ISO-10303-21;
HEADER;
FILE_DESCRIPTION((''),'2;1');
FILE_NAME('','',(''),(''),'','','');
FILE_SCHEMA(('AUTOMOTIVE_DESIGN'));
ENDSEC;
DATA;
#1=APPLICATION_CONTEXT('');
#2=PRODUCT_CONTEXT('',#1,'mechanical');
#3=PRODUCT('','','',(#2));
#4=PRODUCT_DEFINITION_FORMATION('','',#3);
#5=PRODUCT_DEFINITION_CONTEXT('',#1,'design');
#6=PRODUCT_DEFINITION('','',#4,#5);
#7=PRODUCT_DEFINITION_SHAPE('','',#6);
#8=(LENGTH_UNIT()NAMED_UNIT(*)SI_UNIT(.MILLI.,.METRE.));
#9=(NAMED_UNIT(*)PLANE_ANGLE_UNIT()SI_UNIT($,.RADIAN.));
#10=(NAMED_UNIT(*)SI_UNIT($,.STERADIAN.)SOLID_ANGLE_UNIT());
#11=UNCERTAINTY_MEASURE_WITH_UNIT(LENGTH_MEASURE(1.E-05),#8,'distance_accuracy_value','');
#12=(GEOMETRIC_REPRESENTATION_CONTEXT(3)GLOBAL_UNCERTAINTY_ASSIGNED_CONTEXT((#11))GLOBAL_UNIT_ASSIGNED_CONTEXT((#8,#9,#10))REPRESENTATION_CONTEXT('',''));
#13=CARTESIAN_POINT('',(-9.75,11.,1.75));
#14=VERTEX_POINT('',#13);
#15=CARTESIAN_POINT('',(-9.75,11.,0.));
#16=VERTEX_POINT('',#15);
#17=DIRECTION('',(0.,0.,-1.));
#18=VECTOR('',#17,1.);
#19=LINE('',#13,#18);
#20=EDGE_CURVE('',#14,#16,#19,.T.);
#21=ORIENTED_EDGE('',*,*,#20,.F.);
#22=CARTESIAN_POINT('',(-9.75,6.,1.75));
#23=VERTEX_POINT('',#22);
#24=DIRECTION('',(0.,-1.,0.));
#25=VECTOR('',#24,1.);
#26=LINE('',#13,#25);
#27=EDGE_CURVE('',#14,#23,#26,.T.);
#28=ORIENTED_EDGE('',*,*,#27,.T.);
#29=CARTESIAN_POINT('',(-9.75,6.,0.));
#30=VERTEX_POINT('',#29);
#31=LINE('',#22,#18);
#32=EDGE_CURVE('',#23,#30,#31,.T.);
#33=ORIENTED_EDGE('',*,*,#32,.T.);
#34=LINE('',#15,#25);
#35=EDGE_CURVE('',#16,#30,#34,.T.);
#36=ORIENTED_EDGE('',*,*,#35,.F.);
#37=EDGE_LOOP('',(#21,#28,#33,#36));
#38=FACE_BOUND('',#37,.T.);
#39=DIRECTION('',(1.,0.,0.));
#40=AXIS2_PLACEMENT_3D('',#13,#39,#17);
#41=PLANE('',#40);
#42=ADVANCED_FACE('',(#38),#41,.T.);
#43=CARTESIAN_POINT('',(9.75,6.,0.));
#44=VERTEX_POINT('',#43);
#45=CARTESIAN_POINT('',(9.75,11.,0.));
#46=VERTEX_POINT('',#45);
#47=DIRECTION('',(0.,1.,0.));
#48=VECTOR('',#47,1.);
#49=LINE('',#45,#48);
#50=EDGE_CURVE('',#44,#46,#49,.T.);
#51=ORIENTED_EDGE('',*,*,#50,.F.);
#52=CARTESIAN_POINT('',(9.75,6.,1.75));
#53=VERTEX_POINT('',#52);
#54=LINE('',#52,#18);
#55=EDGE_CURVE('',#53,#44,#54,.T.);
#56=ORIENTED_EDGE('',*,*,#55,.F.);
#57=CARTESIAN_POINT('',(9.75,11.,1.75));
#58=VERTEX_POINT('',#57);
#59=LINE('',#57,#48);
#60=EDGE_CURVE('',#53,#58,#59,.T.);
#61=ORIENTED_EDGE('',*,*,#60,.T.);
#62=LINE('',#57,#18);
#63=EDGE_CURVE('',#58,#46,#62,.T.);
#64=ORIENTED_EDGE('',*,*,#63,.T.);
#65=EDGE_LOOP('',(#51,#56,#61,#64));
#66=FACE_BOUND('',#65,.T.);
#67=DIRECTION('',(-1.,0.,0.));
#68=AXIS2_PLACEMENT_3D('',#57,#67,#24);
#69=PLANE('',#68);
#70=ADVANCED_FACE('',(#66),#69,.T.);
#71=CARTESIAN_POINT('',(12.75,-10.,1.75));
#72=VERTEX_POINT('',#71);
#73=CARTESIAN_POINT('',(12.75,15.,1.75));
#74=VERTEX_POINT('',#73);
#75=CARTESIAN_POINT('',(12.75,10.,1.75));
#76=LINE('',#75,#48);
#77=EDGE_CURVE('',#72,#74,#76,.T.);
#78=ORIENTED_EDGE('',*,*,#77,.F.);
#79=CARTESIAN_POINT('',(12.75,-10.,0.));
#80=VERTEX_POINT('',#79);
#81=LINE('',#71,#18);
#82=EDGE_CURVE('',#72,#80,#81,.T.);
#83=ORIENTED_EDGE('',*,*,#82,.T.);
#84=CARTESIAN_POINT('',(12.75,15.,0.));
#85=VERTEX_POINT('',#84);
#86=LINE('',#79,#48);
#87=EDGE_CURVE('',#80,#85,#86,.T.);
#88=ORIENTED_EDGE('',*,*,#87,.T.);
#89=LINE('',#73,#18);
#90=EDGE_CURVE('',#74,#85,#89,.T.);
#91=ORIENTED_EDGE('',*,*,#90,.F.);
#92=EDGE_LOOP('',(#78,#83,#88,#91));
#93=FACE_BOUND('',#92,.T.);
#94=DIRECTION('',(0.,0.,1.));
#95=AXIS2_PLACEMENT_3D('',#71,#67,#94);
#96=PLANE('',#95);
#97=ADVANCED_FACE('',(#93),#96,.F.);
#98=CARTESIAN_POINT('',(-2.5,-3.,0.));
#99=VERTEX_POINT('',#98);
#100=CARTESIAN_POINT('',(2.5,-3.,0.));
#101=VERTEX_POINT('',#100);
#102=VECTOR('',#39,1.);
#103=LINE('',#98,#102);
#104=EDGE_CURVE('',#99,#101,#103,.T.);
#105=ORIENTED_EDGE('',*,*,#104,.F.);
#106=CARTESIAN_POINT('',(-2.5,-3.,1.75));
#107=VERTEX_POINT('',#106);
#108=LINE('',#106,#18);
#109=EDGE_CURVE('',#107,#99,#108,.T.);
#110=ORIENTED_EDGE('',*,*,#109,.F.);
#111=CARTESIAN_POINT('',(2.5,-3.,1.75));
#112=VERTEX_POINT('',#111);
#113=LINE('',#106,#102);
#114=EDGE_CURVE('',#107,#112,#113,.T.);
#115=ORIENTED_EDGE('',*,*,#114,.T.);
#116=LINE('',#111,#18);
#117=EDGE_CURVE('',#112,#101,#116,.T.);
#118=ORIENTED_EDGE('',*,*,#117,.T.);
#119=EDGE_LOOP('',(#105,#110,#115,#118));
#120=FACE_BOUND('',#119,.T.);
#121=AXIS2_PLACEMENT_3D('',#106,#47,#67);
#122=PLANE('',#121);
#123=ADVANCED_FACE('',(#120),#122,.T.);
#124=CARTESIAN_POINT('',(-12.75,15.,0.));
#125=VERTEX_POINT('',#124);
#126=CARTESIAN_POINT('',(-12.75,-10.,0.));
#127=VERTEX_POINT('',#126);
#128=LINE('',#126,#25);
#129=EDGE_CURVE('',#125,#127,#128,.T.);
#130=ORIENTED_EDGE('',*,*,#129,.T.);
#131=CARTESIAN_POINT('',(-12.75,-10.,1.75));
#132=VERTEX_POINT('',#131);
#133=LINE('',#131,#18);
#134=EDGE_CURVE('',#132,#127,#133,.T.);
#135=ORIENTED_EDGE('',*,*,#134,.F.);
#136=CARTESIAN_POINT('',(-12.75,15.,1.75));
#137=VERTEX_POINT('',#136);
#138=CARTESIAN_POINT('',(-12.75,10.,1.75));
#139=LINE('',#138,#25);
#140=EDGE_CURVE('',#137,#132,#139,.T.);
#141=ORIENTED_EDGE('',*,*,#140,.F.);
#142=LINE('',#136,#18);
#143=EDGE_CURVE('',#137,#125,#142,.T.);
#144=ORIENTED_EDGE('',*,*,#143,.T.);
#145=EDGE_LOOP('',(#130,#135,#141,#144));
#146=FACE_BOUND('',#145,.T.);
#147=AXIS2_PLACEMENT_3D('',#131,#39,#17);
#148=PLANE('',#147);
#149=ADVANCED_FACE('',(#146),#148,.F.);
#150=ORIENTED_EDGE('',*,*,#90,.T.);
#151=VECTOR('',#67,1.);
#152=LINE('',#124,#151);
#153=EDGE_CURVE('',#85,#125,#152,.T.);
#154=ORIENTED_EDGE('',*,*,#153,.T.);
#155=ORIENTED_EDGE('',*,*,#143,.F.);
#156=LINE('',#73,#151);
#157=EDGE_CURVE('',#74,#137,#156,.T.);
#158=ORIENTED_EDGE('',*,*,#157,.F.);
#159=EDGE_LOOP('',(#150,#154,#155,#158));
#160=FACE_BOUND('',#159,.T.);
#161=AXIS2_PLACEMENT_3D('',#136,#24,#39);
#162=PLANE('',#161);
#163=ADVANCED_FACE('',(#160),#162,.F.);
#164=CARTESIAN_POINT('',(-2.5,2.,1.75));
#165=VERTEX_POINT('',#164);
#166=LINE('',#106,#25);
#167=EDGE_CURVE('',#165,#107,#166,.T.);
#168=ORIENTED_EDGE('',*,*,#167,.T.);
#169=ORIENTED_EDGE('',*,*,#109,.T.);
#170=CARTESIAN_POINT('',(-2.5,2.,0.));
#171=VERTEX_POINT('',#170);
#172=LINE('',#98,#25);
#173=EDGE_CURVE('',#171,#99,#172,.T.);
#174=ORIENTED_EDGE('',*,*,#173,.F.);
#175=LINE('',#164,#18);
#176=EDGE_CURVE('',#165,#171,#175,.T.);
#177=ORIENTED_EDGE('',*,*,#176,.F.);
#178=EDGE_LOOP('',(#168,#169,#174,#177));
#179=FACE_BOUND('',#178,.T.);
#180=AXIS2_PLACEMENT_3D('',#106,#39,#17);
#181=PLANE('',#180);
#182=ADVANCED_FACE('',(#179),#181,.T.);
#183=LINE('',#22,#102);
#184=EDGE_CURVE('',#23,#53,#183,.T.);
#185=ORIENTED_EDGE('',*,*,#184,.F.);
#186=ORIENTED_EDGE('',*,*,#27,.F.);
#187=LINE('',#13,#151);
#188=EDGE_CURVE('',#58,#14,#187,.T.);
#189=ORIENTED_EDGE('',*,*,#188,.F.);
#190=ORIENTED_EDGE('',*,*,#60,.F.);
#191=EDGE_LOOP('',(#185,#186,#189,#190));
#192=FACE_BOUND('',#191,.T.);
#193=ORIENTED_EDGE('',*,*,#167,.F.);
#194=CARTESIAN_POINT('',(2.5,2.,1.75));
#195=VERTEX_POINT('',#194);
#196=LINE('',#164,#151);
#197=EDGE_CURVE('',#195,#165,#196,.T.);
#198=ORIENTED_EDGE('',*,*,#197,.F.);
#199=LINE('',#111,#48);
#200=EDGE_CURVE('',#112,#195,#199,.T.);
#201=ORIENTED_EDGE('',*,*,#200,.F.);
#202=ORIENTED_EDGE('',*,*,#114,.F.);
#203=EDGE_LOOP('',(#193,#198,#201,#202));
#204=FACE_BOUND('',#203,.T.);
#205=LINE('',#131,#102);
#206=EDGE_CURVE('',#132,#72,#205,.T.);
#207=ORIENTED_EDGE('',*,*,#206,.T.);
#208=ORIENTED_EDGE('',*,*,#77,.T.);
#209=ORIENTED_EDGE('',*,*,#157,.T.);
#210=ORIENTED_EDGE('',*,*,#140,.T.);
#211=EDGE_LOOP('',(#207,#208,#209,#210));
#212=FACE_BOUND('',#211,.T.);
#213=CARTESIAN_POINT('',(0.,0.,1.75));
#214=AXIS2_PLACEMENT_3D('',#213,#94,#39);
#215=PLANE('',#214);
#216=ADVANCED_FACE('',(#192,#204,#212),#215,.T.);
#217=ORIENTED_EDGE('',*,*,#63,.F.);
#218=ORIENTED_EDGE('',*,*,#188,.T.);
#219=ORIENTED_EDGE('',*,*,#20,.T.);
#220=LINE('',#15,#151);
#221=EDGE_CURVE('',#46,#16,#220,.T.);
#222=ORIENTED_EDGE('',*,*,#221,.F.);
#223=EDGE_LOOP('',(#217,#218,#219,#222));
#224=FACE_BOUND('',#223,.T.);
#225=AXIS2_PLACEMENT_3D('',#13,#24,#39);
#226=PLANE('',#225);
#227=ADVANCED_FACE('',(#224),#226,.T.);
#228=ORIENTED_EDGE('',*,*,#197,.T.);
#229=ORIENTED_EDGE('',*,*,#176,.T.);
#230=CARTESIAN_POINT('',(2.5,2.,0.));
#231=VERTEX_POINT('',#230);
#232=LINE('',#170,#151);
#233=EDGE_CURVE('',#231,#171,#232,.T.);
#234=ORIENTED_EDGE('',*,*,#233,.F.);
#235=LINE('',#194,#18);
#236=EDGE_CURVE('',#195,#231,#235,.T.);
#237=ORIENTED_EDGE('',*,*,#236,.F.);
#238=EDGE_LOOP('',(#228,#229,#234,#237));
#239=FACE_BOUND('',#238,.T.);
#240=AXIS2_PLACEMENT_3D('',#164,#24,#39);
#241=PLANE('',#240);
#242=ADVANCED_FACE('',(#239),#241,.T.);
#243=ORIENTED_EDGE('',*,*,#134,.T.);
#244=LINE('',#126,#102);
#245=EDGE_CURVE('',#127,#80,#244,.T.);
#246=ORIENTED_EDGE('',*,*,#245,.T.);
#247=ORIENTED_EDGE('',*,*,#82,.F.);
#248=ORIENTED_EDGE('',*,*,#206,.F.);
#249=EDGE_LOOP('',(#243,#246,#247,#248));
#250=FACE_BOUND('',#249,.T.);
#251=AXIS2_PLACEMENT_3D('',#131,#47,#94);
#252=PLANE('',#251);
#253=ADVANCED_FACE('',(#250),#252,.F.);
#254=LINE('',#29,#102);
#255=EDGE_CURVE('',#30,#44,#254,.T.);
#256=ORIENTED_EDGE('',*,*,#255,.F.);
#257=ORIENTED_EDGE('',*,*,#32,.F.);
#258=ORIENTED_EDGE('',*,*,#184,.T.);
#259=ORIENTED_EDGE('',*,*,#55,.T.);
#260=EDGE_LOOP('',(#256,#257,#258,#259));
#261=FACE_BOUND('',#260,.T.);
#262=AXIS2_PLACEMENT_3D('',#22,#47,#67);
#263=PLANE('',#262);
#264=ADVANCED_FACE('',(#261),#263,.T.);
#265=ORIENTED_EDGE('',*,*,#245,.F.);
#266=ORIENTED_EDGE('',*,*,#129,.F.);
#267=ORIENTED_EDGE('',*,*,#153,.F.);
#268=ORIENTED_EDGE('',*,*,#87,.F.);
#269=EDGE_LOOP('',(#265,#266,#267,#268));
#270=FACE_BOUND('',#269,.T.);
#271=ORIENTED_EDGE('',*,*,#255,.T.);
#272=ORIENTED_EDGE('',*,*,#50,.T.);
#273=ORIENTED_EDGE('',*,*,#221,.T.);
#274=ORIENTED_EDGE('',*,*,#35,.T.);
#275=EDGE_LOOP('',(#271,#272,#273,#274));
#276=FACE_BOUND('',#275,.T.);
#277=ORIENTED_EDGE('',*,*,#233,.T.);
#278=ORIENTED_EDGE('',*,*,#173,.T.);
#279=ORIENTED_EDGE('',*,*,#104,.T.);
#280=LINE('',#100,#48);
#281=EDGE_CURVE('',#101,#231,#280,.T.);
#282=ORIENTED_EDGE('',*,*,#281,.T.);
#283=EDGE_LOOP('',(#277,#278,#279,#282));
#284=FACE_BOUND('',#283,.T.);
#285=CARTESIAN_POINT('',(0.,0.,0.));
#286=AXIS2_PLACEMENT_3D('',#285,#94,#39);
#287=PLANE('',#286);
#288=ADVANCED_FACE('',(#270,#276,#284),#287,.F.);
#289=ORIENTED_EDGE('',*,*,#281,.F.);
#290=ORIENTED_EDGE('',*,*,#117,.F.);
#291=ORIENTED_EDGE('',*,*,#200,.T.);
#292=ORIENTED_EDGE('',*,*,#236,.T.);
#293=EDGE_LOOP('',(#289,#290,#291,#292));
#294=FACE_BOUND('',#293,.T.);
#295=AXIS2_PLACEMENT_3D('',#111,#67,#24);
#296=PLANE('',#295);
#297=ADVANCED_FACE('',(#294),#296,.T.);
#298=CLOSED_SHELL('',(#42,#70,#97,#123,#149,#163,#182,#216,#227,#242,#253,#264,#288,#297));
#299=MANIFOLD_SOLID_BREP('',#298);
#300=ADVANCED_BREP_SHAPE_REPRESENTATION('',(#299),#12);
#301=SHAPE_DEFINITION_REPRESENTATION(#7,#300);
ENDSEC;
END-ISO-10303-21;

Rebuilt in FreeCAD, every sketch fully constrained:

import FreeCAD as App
import Part
import Sketcher
from FreeCAD import Vector
Q = App.Units.Quantity


def add_polygon(sketch, points):
    """Adds a closed chain of lines whose ends are joined by coincident constraints."""
    first, n = sketch.GeometryCount, len(points)
    for a, b in zip(points, points[1:] + points[:1]):
        sketch.addGeometry(Part.LineSegment(App.Vector(*a, 0), App.Vector(*b, 0)), False)
    for i in range(n):
        sketch.addConstraint(Sketcher.Constraint("Coincident", first + i, 2, first + (i + 1) % n, 1))

doc = App.newDocument("Part")
body = doc.addObject("PartDesign::Body", "Body")

# Sketch on XY plane
sketch1 = body.newObject("Sketcher::SketchObject", "Sketch")
sketch1.AttachmentSupport = (doc.getObject("XY_Plane"), [""])
sketch1.MapMode = "FlatFace"
add_polygon(sketch1, [(12.75, 15), (-12.75, 15), (-12.75, -10), (12.75, -10)])  # lines 0-3
add_polygon(sketch1, [(-2.5, -3), (-2.5, 2), (2.5, 2), (2.5, -3)])  # lines 4-7
add_polygon(sketch1, [(-9.75, 6), (-9.75, 11), (9.75, 11), (9.75, 6)])  # lines 8-11
sketch1.addConstraint(Sketcher.Constraint("Horizontal", 0))
sketch1.addConstraint(Sketcher.Constraint("Vertical", 1))
sketch1.addConstraint(Sketcher.Constraint("Horizontal", 2))
sketch1.addConstraint(Sketcher.Constraint("Vertical", 3))
sketch1.addConstraint(Sketcher.Constraint("Vertical", 4))
sketch1.addConstraint(Sketcher.Constraint("Horizontal", 5))
sketch1.addConstraint(Sketcher.Constraint("Vertical", 6))
sketch1.addConstraint(Sketcher.Constraint("Horizontal", 7))
sketch1.addConstraint(Sketcher.Constraint("Vertical", 8))
sketch1.addConstraint(Sketcher.Constraint("Horizontal", 9))
sketch1.addConstraint(Sketcher.Constraint("Vertical", 10))
sketch1.addConstraint(Sketcher.Constraint("Horizontal", 11))
sketch1.addConstraint(Sketcher.Constraint("Equal", 7, 4))
sketch1.addConstraint(Sketcher.Constraint("Equal", 6, 8))
sketch1.addConstraint(Sketcher.Constraint("DistanceX", 5, 1, 5, 2, Q("5 mm")))
sketch1.addConstraint(Sketcher.Constraint("DistanceY", 1, 2, 1, 1, Q("25 mm")))
sketch1.addConstraint(Sketcher.Constraint("DistanceX", 0, 2, 0, 1, Q("25.5 mm")))
sketch1.addConstraint(Sketcher.Constraint("DistanceX", 9, 1, 9, 2, Q("19.5 mm")))
sketch1.addConstraint(Sketcher.Constraint("DistanceY", -1, 1, 0, 2, Q("15 mm")))
sketch1.addConstraint(Sketcher.Constraint("DistanceY", -1, 1, 4, 2, Q("2 mm")))
sketch1.addConstraint(Sketcher.Constraint("DistanceY", -1, 1, 8, 2, Q("11 mm")))
sketch1.addConstraint(Sketcher.Constraint("DistanceX", 0, 2, 8, 2, Q("3 mm")))
sketch1.addConstraint(Sketcher.Constraint("DistanceX", 4, 2, -1, 1, Q("2.5 mm")))
sketch1.addConstraint(Sketcher.Constraint("DistanceX", 0, 2, -1, 1, Q("12.75 mm")))
pad1 = body.newObject("PartDesign::Pad", "Pad")
pad1.Profile = sketch1
pad1.Length = 1.75

doc.recompute()
